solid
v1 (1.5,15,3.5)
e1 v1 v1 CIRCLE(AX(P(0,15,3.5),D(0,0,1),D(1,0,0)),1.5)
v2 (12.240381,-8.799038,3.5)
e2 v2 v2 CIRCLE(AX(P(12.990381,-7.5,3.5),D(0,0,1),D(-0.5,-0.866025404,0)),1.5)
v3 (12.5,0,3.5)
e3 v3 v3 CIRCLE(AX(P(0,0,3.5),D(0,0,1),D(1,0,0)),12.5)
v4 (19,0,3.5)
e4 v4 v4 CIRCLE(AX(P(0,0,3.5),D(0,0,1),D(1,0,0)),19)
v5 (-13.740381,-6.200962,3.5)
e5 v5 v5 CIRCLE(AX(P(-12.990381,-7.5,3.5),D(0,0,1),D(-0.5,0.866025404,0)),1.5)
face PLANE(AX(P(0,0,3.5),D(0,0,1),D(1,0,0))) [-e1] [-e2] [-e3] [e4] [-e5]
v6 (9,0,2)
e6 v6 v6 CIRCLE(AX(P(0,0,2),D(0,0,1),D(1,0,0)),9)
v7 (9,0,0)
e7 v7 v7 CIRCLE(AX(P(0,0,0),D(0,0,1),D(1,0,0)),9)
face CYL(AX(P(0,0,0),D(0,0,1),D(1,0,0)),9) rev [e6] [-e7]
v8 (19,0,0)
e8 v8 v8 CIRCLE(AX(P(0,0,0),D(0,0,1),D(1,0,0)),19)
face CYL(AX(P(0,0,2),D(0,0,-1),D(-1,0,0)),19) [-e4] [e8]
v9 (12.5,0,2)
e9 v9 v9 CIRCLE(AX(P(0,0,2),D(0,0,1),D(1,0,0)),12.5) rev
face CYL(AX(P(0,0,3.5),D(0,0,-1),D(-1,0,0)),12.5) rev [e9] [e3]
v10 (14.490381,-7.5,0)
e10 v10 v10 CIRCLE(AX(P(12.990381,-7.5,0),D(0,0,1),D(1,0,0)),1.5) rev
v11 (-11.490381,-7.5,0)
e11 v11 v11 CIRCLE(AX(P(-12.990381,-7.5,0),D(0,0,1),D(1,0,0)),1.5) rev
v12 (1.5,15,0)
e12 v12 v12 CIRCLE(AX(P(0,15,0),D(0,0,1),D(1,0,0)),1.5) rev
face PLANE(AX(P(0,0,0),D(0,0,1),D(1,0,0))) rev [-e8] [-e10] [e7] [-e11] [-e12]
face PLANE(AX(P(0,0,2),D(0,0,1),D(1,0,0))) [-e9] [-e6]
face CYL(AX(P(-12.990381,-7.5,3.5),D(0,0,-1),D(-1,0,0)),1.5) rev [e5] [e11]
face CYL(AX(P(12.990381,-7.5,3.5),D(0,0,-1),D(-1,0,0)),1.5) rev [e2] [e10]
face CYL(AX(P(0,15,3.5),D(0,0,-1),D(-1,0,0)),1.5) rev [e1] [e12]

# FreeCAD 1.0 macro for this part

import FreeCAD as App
import Part
import Sketcher
Q = App.Units.Quantity

doc = App.newDocument("Part")
body = doc.addObject("PartDesign::Body", "Body")

sketch1 = body.newObject("Sketcher::SketchObject", "Sketch")
sketch1.AttachmentSupport = (doc.getObject("XY_Plane"), [""])
sketch1.MapMode = "FlatFace"
sketch1.addGeometry(Part.Circle(App.Vector(0, 0, 0), App.Vector(0, 0, 1), 19), False)
sketch1.addConstraint(Sketcher.Constraint("Coincident", 0, 3, -1, 1))
sketch1.addConstraint(Sketcher.Constraint("Diameter", 0, Q("38 mm")))
pad1 = body.newObject("PartDesign::Pad", "Pad")
pad1.Profile = sketch1
pad1.Length = 2

sketch2 = body.newObject("Sketcher::SketchObject", "Sketch001")
sketch2.AttachmentSupport = (doc.getObject("XY_Plane"), [""])
sketch2.MapMode = "FlatFace"
sketch2.AttachmentOffset = App.Placement(App.Vector(0, 0, 2), App.Rotation())
sketch2.addGeometry(Part.Circle(App.Vector(0, 0, 0), App.Vector(0, 0, 1), 19), False)
sketch2.addGeometry(Part.Circle(App.Vector(0, 0, 0), App.Vector(0, 0, 1), 12), False)
sketch2.addConstraint(Sketcher.Constraint("Coincident", 0, 3, -1, 1))
sketch2.addConstraint(Sketcher.Constraint("Coincident", 1, 3, -1, 1))
sketch2.addConstraint(Sketcher.Constraint("Diameter", 0, Q("38 mm")))
sketch2.addConstraint(Sketcher.Constraint("Diameter", 1, Q("25 mm")))
pad2 = body.newObject("PartDesign::Pad", "Pad001")
pad2.Profile = sketch2
pad2.Length = 1.5

sketch3 = body.newObject("Sketcher::SketchObject", "Sketch002")
sketch3.AttachmentSupport = (doc.getObject("XY_Plane"), [""])
sketch3.MapMode = "FlatFace"
sketch3.AttachmentOffset = App.Placement(App.Vector(0, 0, 2), App.Rotation())
sketch3.addGeometry(Part.Circle(App.Vector(0, 0, 0), App.Vector(0, 0, 1), 9), False)
sketch3.addConstraint(Sketcher.Constraint("Coincident", 0, 3, -1, 1))
sketch3.addConstraint(Sketcher.Constraint("Diameter", 0, Q("18 mm")))
pocket1 = body.newObject("PartDesign::Pocket", "Pocket")
pocket1.Profile = sketch3
pocket1.Type = "ThroughAll"
pocket1.Midplane = True

sketch4 = body.newObject("Sketcher::SketchObject", "Sketch003")
sketch4.AttachmentSupport = (doc.getObject("XY_Plane"), [""])
sketch4.MapMode = "FlatFace"
sketch4.addGeometry(Part.Circle(App.Vector(0, 15, 0), App.Vector(0, 0, 1), 1.5), False)
sketch4.addConstraint(Sketcher.Constraint("PointOnObject", 0, 3, -2))
sketch4.addConstraint(Sketcher.Constraint("Diameter", 0, Q("3 mm")))
sketch4.addConstraint(Sketcher.Constraint("DistanceY", -1, 1, 0, 3, Q("15 mm")))
pocket2 = body.newObject("PartDesign::Pocket", "Pocket001")
pocket2.Profile = sketch4
pocket2.Length = 56.194096
pocket2.Midplane = True
doc.recompute()

polarpattern = body.newObject("PartDesign::PolarPattern", "PolarPattern")
polarpattern.Originals = [pocket2]
polarpattern.Axis = (doc.getObject("Z_Axis"), [""])
polarpattern.Angle = 360
polarpattern.Occurrences = 3
body.Tip = polarpattern

doc.recompute()
